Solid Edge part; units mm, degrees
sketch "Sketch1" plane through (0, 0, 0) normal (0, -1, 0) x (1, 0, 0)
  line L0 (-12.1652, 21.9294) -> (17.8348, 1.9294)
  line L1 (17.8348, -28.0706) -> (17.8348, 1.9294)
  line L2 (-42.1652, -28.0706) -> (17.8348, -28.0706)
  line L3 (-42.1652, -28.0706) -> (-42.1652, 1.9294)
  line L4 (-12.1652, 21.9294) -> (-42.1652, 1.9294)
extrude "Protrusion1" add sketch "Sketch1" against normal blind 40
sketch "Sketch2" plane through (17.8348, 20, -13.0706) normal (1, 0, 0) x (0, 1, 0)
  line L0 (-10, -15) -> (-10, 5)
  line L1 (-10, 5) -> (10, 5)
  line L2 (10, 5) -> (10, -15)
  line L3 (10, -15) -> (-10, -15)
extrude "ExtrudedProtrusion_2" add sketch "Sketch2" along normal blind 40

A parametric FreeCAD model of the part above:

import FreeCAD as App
import Part
import Sketcher
from FreeCAD import Vector

doc = App.newDocument("Part")
body = doc.addObject("PartDesign::Body", "Body")

sketch1 = body.newObject("Sketcher::SketchObject", "Sketch")
sketch1.AttachmentSupport = (doc.getObject("XZ_Plane"), [""])
sketch1.MapMode = "FlatFace"
sketch1.addGeometry(Part.LineSegment(Vector(18, 2, 0), Vector(-12, 22, 0)), False)
sketch1.addGeometry(Part.LineSegment(Vector(-12, 22, 0), Vector(-42, 2, 0)), False)
sketch1.addGeometry(Part.LineSegment(Vector(-42, 2, 0), Vector(-42, -28, 0)), False)
sketch1.addGeometry(Part.LineSegment(Vector(-42, -28, 0), Vector(18, -28, 0)), False)
sketch1.addGeometry(Part.LineSegment(Vector(18, -28, 0), Vector(18, 2, 0)), False)
sketch1.addConstraint(Sketcher.Constraint("Coincident", 0, 2, 1, 1))
sketch1.addConstraint(Sketcher.Constraint("Coincident", 1, 2, 2, 1))
sketch1.addConstraint(Sketcher.Constraint("Coincident", 2, 2, 3, 1))
sketch1.addConstraint(Sketcher.Constraint("Coincident", 3, 2, 4, 1))
sketch1.addConstraint(Sketcher.Constraint("Coincident", 4, 2, 0, 1))
sketch1.addConstraint(Sketcher.Constraint("Vertical", 2))
sketch1.addConstraint(Sketcher.Constraint("Horizontal", 3))
sketch1.addConstraint(Sketcher.Constraint("Vertical", 4))
sketch1.addConstraint(Sketcher.Constraint("Horizontal", 1, 2, 4, 2))
sketch1.addConstraint(Sketcher.Constraint("Equal", 0, 1))
sketch1.addConstraint(Sketcher.Constraint("DistanceX", 3, 1, 3, 2, 60.0))
sketch1.addConstraint(Sketcher.Constraint("DistanceY", 2, 2, 2, 1, 30.0))
sketch1.addConstraint(Sketcher.Constraint("DistanceY", 1, 2, 0, 2, 20.0))
sketch1.addConstraint(Sketcher.Constraint("DistanceX", 0, 2, -1, 1, 12.1652))
sketch1.addConstraint(Sketcher.Constraint("DistanceY", -1, 1, 0, 2, 21.9294))
pad1 = body.newObject("PartDesign::Pad", "Pad")
pad1.Profile = sketch1
pad1.Length = 40
pad1.Reversed = True

sketch2 = body.newObject("Sketcher::SketchObject", "Sketch001")
sketch2.AttachmentSupport = (doc.getObject("YZ_Plane"), [""])
sketch2.MapMode = "FlatFace"
sketch2.AttachmentOffset = App.Placement(Vector(0, 0, 17.8348), App.Rotation())
sketch2.addGeometry(Part.LineSegment(Vector(10, -8, 0), Vector(10, -28, 0)), False)
sketch2.addGeometry(Part.LineSegment(Vector(10, -28, 0), Vector(30, -28, 0)), False)
sketch2.addGeometry(Part.LineSegment(Vector(30, -28, 0), Vector(30, -8, 0)), False)
sketch2.addGeometry(Part.LineSegment(Vector(30, -8, 0), Vector(10, -8, 0)), False)
sketch2.addConstraint(Sketcher.Constraint("Coincident", 0, 2, 1, 1))
sketch2.addConstraint(Sketcher.Constraint("Coincident", 1, 2, 2, 1))
sketch2.addConstraint(Sketcher.Constraint("Coincident", 2, 2, 3, 1))
sketch2.addConstraint(Sketcher.Constraint("Coincident", 3, 2, 0, 1))
sketch2.addConstraint(Sketcher.Constraint("Vertical", 0))
sketch2.addConstraint(Sketcher.Constraint("Horizontal", 1))
sketch2.addConstraint(Sketcher.Constraint("Vertical", 2))
sketch2.addConstraint(Sketcher.Constraint("Horizontal", 3))
sketch2.addConstraint(Sketcher.Constraint("Equal", 3, 0))
sketch2.addConstraint(Sketcher.Constraint("DistanceX", 1, 1, 1, 2, 20.0))
sketch2.addConstraint(Sketcher.Constraint("DistanceX", -1, 1, 0, 2, 10.0))
sketch2.addConstraint(Sketcher.Constraint("DistanceY", 0, 2, -1, 1, 28.0706))
pad2 = body.newObject("PartDesign::Pad", "Pad001")
pad2.Profile = sketch2
pad2.Length = 40

doc.recompute()
